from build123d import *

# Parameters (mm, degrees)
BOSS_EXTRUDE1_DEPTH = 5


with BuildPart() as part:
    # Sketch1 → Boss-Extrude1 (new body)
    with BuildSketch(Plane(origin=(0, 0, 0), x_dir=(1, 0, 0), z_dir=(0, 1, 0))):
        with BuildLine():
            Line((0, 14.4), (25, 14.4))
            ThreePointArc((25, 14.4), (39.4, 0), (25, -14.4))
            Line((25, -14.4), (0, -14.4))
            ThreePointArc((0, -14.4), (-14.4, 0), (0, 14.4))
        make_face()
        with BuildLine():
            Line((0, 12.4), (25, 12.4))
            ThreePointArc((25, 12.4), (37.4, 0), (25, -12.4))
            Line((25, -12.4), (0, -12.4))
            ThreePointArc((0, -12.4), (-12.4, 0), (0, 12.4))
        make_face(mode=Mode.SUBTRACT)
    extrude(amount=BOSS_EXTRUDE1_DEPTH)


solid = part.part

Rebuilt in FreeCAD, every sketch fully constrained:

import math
import FreeCAD as App
import Part
import Sketcher

doc = App.newDocument("Part")
body = doc.addObject("PartDesign::Body", "Body")

# Sketch on XZ plane
sketch1 = body.newObject("Sketcher::SketchObject", "Sketch")
sketch1.AttachmentSupport = (doc.getObject("XZ_Plane"), [""])
sketch1.MapMode = "FlatFace"
sketch1.addGeometry([
    Part.LineSegment(App.Vector(25, -14, 0), App.Vector(0, -14, 0)),  # 0
    Part.ArcOfCircle(Part.Circle(App.Vector(0, 0, 0), App.Vector(0, 0, 1), 14), math.radians(90), math.radians(270)),  # 1
    Part.LineSegment(App.Vector(0, 14, 0), App.Vector(25, 14, 0)),  # 2
    Part.ArcOfCircle(Part.Circle(App.Vector(25, 0, 0), App.Vector(0, 0, 1), 14), math.radians(-90), math.radians(90)),  # 3
    Part.LineSegment(App.Vector(0, -12, 0), App.Vector(25, -12, 0)),  # 4
    Part.ArcOfCircle(Part.Circle(App.Vector(25, 0, 0), App.Vector(0, 0, 1), 12), math.radians(-90), math.radians(90)),  # 5
    Part.LineSegment(App.Vector(25, 12, 0), App.Vector(0, 12, 0)),  # 6
    Part.ArcOfCircle(Part.Circle(App.Vector(0, 0, 0), App.Vector(0, 0, 1), 12), math.radians(90), math.radians(270)),  # 7
], False)
sketch1.addConstraint([
    Sketcher.Constraint("Tangent", 0, 2, 1, 2),
    Sketcher.Constraint("Tangent", 1, 1, 2, 1),
    Sketcher.Constraint("Tangent", 2, 2, 3, 2),
    Sketcher.Constraint("Tangent", 3, 1, 0, 1),
    Sketcher.Constraint("Tangent", 4, 2, 5, 1),
    Sketcher.Constraint("Tangent", 5, 2, 6, 1),
    Sketcher.Constraint("Tangent", 6, 2, 7, 1),
    Sketcher.Constraint("Tangent", 7, 2, 4, 1),
    Sketcher.Constraint("Horizontal", 0),
    Sketcher.Constraint("Horizontal", 2),
    Sketcher.Constraint("Horizontal", 4),
    Sketcher.Constraint("Horizontal", 6),
    Sketcher.Constraint("Coincident", 1, 3, -1, 1),
    Sketcher.Constraint("Coincident", 7, 3, -1, 1),
    Sketcher.Constraint("Vertical", 5, 3, 2, 2),
    Sketcher.Constraint("Radius", 1, 14.4),
    Sketcher.Constraint("Radius", 5, 12.4),
    Sketcher.Constraint("DistanceX", 0, 2, 0, 1, 25.0),
])
pad1 = body.newObject("PartDesign::Pad", "Pad")
pad1.Profile = sketch1
pad1.Length = 5
pad1.Reversed = True

doc.recompute()
